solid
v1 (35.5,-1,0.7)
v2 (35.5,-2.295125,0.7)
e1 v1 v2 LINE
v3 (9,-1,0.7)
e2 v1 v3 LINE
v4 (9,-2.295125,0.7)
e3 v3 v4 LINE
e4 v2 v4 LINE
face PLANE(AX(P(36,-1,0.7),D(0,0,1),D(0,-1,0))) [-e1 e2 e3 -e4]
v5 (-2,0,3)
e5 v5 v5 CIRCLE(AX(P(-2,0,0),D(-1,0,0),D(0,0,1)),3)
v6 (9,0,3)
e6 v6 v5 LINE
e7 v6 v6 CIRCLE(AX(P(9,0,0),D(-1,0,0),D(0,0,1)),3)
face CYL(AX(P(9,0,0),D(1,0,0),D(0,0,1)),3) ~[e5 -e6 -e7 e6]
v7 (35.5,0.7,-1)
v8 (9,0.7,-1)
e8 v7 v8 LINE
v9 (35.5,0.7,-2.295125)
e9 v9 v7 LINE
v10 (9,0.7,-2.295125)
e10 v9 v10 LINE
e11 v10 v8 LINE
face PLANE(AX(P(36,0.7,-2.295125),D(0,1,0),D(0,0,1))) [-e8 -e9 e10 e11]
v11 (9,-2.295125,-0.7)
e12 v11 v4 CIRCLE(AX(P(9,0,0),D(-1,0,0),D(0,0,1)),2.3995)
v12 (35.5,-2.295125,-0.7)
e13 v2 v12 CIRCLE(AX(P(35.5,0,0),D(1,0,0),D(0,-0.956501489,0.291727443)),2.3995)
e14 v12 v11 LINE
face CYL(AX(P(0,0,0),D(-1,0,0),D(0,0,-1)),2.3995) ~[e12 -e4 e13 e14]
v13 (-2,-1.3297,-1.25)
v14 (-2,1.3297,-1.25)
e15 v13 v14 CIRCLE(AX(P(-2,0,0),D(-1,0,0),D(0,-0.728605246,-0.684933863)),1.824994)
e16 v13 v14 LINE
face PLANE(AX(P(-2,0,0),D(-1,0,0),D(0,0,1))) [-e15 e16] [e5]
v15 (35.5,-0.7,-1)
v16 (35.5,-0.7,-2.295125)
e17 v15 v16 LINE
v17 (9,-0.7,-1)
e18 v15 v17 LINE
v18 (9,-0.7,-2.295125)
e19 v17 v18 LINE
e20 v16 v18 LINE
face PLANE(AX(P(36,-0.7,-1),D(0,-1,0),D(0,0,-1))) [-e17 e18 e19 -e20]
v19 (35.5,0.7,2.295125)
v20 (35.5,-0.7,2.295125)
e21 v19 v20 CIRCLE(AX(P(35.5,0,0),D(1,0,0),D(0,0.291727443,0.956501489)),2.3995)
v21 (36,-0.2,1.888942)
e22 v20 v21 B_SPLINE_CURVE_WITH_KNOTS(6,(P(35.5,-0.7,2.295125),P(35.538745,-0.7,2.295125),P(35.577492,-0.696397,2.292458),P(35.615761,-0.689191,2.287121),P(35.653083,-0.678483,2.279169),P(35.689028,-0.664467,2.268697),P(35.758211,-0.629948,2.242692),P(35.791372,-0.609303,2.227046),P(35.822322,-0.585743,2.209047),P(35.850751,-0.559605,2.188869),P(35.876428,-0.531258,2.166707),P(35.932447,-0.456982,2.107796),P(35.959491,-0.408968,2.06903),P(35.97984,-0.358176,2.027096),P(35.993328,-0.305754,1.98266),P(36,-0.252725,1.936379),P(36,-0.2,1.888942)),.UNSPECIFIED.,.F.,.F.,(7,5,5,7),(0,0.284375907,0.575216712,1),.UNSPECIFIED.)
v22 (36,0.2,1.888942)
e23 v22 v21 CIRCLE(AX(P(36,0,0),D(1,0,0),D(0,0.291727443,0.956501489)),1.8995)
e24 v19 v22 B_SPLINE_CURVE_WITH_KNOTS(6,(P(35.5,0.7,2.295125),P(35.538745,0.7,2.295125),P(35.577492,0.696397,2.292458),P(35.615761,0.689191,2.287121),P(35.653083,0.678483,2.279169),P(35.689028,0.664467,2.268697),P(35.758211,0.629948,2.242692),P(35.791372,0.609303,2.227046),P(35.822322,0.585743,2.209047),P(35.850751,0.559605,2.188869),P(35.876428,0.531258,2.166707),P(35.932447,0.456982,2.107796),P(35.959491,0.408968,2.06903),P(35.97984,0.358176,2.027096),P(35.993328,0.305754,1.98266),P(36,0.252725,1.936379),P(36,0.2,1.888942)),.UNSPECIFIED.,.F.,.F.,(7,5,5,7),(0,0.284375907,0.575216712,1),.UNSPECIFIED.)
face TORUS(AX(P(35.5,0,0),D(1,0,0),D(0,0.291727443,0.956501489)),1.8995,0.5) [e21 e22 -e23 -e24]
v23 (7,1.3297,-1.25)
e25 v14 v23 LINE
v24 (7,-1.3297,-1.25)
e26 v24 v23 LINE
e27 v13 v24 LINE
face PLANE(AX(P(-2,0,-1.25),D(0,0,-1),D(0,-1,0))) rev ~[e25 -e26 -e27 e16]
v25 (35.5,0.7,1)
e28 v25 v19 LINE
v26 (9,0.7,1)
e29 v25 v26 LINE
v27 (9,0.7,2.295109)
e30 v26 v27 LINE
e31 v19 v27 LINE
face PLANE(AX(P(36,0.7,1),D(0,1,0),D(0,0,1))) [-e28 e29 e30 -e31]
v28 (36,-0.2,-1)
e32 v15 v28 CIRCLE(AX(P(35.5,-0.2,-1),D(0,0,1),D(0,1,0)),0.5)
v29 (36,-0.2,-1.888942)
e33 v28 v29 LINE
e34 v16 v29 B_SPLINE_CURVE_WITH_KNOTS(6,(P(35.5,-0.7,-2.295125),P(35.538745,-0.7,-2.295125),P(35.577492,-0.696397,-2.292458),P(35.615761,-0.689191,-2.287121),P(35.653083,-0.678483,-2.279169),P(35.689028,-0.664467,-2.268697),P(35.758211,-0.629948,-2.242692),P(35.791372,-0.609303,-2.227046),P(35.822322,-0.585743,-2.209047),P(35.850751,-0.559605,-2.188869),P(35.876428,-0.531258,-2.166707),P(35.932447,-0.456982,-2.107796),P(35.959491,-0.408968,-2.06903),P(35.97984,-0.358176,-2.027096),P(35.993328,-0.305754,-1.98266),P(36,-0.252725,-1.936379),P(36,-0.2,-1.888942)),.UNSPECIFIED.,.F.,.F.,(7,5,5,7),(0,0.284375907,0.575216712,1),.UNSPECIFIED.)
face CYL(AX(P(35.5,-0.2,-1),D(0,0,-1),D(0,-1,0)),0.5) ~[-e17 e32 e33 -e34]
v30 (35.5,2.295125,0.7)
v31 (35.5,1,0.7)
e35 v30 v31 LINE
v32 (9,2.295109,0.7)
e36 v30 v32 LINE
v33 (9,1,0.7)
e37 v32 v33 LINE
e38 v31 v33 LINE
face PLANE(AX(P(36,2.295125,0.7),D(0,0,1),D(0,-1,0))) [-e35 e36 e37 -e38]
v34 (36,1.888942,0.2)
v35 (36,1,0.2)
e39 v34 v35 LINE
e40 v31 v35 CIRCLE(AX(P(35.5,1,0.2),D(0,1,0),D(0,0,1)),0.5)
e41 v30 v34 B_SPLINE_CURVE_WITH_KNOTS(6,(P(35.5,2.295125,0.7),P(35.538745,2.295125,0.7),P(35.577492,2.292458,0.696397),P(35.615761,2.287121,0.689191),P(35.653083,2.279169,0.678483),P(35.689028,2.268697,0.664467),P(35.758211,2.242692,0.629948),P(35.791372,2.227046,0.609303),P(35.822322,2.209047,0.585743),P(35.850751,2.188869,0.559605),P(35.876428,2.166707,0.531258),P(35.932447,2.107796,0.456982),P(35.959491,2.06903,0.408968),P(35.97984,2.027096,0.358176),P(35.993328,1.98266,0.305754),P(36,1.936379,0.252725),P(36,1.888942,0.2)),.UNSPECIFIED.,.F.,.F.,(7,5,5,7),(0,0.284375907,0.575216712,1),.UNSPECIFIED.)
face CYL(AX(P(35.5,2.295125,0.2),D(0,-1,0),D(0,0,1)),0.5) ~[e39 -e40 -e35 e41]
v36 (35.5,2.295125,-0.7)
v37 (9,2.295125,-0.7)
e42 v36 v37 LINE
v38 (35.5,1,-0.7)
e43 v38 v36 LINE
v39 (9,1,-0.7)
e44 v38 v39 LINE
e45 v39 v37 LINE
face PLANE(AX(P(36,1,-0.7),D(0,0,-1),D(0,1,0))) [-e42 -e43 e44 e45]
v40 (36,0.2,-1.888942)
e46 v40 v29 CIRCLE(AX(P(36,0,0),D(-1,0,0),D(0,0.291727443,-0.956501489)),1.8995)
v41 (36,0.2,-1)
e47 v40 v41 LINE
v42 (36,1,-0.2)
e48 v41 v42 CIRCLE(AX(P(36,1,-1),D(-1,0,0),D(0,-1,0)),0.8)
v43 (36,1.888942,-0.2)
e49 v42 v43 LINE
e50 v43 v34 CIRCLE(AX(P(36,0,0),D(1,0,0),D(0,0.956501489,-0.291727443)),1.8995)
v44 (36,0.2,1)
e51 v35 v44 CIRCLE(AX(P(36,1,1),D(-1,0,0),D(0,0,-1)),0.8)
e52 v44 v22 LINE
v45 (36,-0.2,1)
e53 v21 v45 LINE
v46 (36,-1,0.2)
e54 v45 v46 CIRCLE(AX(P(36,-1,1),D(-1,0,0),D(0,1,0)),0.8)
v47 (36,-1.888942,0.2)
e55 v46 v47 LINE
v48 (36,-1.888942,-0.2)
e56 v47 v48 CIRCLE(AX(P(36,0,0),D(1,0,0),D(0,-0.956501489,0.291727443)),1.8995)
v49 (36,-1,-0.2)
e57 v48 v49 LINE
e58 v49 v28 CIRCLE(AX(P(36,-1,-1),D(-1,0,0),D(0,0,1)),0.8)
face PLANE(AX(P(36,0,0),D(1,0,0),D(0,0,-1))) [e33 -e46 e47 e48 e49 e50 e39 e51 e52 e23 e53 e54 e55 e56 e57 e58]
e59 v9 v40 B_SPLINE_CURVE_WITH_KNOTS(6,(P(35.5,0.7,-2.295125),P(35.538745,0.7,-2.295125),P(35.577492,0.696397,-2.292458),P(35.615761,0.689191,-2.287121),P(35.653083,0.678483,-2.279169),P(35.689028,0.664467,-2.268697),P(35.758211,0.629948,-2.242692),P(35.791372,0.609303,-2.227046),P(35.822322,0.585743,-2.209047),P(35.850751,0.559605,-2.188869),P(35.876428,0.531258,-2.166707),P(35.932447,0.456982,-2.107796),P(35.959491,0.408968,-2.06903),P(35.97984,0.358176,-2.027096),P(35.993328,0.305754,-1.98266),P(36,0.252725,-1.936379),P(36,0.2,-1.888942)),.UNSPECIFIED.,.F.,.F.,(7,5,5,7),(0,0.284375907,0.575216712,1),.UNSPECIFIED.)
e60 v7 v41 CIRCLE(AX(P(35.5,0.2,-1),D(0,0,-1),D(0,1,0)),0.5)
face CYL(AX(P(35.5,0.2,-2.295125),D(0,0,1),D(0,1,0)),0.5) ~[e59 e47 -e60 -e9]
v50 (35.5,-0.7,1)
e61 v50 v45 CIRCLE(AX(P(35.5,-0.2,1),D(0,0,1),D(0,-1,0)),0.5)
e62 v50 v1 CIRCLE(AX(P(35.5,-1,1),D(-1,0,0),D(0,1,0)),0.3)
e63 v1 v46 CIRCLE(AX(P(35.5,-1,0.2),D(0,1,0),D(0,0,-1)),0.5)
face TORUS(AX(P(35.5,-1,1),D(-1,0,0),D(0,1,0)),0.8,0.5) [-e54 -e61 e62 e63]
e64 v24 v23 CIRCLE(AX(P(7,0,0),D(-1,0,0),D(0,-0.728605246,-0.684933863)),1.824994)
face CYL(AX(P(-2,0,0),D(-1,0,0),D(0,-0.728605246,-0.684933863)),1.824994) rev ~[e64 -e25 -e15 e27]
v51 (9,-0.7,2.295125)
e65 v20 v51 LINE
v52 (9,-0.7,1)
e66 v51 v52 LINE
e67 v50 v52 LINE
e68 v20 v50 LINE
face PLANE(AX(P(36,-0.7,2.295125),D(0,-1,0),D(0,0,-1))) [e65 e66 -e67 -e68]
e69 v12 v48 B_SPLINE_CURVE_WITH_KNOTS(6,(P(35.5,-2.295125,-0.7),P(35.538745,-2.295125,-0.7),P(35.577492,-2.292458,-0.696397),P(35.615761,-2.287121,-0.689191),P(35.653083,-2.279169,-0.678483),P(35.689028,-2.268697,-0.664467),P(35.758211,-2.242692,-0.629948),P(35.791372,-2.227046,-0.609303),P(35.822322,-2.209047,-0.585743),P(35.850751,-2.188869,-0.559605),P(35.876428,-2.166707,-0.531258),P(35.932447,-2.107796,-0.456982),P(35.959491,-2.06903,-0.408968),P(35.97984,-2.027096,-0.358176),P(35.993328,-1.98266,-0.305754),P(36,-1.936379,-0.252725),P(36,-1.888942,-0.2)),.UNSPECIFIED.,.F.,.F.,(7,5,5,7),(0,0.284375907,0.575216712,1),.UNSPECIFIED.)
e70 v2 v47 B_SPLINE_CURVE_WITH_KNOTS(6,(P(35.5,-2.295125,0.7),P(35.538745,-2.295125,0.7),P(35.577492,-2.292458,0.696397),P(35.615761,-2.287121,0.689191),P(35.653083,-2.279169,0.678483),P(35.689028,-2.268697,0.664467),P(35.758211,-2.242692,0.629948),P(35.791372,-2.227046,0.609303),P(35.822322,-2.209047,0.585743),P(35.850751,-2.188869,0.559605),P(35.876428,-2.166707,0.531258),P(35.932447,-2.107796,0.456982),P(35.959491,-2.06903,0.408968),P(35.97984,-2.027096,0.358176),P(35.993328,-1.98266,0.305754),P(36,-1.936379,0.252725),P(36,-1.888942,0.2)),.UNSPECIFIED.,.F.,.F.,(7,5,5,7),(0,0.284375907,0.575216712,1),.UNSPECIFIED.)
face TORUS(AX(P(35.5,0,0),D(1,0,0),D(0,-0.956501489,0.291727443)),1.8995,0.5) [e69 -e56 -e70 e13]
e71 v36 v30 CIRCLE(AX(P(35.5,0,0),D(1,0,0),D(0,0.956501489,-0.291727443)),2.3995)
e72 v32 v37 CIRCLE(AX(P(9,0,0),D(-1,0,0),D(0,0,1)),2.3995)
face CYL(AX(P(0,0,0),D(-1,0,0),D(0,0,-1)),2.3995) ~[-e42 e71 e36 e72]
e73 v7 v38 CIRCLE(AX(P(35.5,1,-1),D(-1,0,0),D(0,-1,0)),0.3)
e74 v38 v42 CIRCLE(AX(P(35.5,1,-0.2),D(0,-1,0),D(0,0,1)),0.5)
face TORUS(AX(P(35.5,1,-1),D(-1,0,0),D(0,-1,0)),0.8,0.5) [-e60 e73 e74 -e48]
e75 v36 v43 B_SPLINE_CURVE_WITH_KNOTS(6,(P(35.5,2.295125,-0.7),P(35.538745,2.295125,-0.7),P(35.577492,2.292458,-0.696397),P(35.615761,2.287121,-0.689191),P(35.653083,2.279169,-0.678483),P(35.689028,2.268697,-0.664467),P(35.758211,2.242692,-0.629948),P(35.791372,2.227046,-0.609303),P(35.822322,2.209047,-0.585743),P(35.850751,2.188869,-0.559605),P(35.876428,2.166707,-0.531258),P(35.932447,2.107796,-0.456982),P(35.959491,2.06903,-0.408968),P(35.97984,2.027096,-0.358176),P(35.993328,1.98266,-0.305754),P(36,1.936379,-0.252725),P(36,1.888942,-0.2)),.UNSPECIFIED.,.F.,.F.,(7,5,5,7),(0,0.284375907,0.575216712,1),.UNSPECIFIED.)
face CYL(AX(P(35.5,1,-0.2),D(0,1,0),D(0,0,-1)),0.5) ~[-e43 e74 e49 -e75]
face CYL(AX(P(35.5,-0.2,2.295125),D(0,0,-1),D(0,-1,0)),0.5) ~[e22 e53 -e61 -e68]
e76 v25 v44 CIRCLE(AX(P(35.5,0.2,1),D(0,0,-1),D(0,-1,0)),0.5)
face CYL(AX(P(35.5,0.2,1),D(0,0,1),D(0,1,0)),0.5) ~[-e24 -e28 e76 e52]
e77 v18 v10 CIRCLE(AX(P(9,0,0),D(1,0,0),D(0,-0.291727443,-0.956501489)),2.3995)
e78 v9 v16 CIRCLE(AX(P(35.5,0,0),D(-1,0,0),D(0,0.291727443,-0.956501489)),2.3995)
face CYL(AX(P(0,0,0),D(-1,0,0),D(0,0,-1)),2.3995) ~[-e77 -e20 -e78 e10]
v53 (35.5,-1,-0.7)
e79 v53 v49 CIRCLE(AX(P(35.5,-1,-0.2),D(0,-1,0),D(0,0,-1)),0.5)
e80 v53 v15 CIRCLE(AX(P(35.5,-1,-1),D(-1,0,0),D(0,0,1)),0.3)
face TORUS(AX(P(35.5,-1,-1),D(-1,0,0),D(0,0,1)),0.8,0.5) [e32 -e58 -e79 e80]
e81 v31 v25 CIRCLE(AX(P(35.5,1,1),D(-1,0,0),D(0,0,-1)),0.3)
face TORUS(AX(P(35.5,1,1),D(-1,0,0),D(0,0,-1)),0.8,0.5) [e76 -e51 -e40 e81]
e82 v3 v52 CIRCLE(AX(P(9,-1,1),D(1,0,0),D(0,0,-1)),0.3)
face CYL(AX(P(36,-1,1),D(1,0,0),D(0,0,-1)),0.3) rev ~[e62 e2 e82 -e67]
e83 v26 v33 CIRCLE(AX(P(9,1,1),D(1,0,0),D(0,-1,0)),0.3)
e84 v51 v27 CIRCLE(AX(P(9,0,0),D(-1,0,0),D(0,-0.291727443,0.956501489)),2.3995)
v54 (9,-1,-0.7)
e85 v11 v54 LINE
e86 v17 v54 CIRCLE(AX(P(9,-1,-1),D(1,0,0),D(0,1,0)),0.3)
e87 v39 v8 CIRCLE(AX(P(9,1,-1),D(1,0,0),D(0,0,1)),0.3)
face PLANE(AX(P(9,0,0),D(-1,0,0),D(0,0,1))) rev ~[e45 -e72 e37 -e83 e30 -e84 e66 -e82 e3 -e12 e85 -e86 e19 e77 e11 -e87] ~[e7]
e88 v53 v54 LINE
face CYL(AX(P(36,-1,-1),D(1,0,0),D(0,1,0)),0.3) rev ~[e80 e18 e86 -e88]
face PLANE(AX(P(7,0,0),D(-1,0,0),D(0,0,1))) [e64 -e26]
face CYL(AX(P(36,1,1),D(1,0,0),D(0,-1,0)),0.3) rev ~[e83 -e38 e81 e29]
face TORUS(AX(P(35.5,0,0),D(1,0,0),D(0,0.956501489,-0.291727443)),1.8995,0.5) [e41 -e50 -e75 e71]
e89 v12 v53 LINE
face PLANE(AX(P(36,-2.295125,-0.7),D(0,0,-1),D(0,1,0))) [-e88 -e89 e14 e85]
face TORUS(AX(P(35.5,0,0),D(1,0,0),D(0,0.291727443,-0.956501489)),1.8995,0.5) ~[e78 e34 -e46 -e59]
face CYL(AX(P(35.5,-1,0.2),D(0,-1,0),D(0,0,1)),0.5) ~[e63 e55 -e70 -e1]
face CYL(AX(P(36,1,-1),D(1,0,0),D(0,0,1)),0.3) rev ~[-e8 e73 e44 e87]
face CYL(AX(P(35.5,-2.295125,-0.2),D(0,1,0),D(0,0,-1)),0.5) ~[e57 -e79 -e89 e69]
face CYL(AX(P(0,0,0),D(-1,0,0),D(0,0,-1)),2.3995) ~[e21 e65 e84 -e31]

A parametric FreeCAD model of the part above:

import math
import FreeCAD as App
import Part
import Sketcher

V = App.Vector


def edges_at(feature, points):
    """Names of the edges that pass closest to the given points."""
    edges = feature.Shape.Edges
    near = lambda p: min(range(len(edges)), key=lambda i: edges[i].distToShape(Part.Vertex(*p))[0])
    return sorted({f"Edge{near(p) + 1}" for p in points})

doc = App.newDocument("Part")
body = doc.addObject("PartDesign::Body", "Body")

sketch1 = body.newObject("Sketcher::SketchObject", "Sketch")
sketch1.AttachmentSupport = (doc.getObject("YZ_Plane"), [""])
sketch1.MapMode = "FlatFace"
sketch1.addGeometry(Part.Circle(V(0, 0, 0), V(0, 0, 1), 2.4), False)
sketch1.addConstraint(Sketcher.Constraint("Coincident", 0, 3, -1, 1))
sketch1.addConstraint(Sketcher.Constraint("Diameter", 0, 4.799))
pad1 = body.newObject("PartDesign::Pad", "Pad")
pad1.Profile = sketch1
pad1.Length = 36

sketch2 = body.newObject("Sketcher::SketchObject", "Sketch001")
sketch2.AttachmentSupport = (doc.getObject("YZ_Plane"), [""])
sketch2.MapMode = "FlatFace"
sketch2.AttachmentOffset = App.Placement(V(0, 0, 36), App.Rotation())
sketch2.addGeometry(Part.LineSegment(V(0.7, -1, 0), V(0.7, -2.3, 0)), False)
sketch2.addGeometry(Part.ArcOfCircle(Part.Circle(V(0, 0, 0), V(0, 0, 1), 2.4), math.radians(-73), math.radians(-17)), False)
sketch2.addGeometry(Part.LineSegment(V(2.3, -0.7, 0), V(1, -0.7, 0)), False)
sketch2.addGeometry(Part.ArcOfCircle(Part.Circle(V(1, -1, 0), V(0, 0, 1), 0.3), math.radians(90), math.radians(180)), False)
sketch2.addGeometry(Part.ArcOfCircle(Part.Circle(V(0, 0, 0), V(0, 0, 1), 2.4), math.radians(-163), math.radians(-107)), False)
sketch2.addGeometry(Part.LineSegment(V(-0.7, -2.3, 0), V(-0.7, -1, 0)), False)
sketch2.addGeometry(Part.ArcOfCircle(Part.Circle(V(-1, -1, 0), V(0, 0, 1), 0.3), math.radians(0), math.radians(90)), False)
sketch2.addGeometry(Part.LineSegment(V(-1, -0.7, 0), V(-2.3, -0.7, 0)), False)
sketch2.addGeometry(Part.LineSegment(V(1, 0.7, 0), V(2.3, 0.7, 0)), False)
sketch2.addGeometry(Part.ArcOfCircle(Part.Circle(V(0, 0, 0), V(0, 0, 1), 2.4), math.radians(17), math.radians(73)), False)
sketch2.addGeometry(Part.LineSegment(V(0.7, 2.3, 0), V(0.7, 1, 0)), False)
sketch2.addGeometry(Part.ArcOfCircle(Part.Circle(V(1, 1, 0), V(0, 0, 1), 0.3), math.radians(180), math.radians(270)), False)
sketch2.addGeometry(Part.ArcOfCircle(Part.Circle(V(0, 0, 0), V(0, 0, 1), 2.4), math.radians(107), math.radians(163)), False)
sketch2.addGeometry(Part.LineSegment(V(-2.3, 0.7, 0), V(-1, 0.7, 0)), False)
sketch2.addGeometry(Part.ArcOfCircle(Part.Circle(V(-1, 1, 0), V(0, 0, 1), 0.3), math.radians(-90), math.radians(0)), False)
sketch2.addGeometry(Part.LineSegment(V(-0.7, 1, 0), V(-0.7, 2.3, 0)), False)
sketch2.addConstraint(Sketcher.Constraint("Coincident", 0, 2, 1, 1))
sketch2.addConstraint(Sketcher.Constraint("Coincident", 1, 2, 2, 1))
sketch2.addConstraint(Sketcher.Constraint("Tangent", 2, 2, 3, 1))
sketch2.addConstraint(Sketcher.Constraint("Tangent", 3, 2, 0, 1))
sketch2.addConstraint(Sketcher.Constraint("Coincident", 4, 2, 5, 1))
sketch2.addConstraint(Sketcher.Constraint("Tangent", 5, 2, 6, 1))
sketch2.addConstraint(Sketcher.Constraint("Tangent", 6, 2, 7, 1))
sketch2.addConstraint(Sketcher.Constraint("Coincident", 7, 2, 4, 1))
sketch2.addConstraint(Sketcher.Constraint("Coincident", 8, 2, 9, 1))
sketch2.addConstraint(Sketcher.Constraint("Coincident", 9, 2, 10, 1))
sketch2.addConstraint(Sketcher.Constraint("Tangent", 10, 2, 11, 1))
sketch2.addConstraint(Sketcher.Constraint("Tangent", 11, 2, 8, 1))
sketch2.addConstraint(Sketcher.Constraint("Coincident", 12, 2, 13, 1))
sketch2.addConstraint(Sketcher.Constraint("Tangent", 13, 2, 14, 1))
sketch2.addConstraint(Sketcher.Constraint("Tangent", 14, 2, 15, 1))
sketch2.addConstraint(Sketcher.Constraint("Coincident", 15, 2, 12, 1))
sketch2.addConstraint(Sketcher.Constraint("Vertical", 0))
sketch2.addConstraint(Sketcher.Constraint("Horizontal", 2))
sketch2.addConstraint(Sketcher.Constraint("Vertical", 5))
sketch2.addConstraint(Sketcher.Constraint("Horizontal", 7))
sketch2.addConstraint(Sketcher.Constraint("Horizontal", 8))
sketch2.addConstraint(Sketcher.Constraint("Vertical", 10))
sketch2.addConstraint(Sketcher.Constraint("Horizontal", 13))
sketch2.addConstraint(Sketcher.Constraint("Vertical", 15))
sketch2.addConstraint(Sketcher.Constraint("Coincident", 1, 3, -1, 1))
sketch2.addConstraint(Sketcher.Constraint("Coincident", 4, 3, -1, 1))
sketch2.addConstraint(Sketcher.Constraint("Coincident", 9, 3, -1, 1))
sketch2.addConstraint(Sketcher.Constraint("Coincident", 12, 3, -1, 1))
sketch2.addConstraint(Sketcher.Constraint("Equal", 1, 4))
sketch2.addConstraint(Sketcher.Constraint("Equal", 3, 6))
sketch2.addConstraint(Sketcher.Constraint("Equal", 4, 9))
sketch2.addConstraint(Sketcher.Constraint("Equal", 6, 11))
sketch2.addConstraint(Sketcher.Constraint("Equal", 9, 12))
sketch2.addConstraint(Sketcher.Constraint("Equal", 11, 14))
sketch2.addConstraint(Sketcher.Constraint("Symmetric", 6, 3, 11, 3, -1, 1))
sketch2.addConstraint(Sketcher.Constraint("Symmetric", 3, 3, 14, 3, -1, 1))
sketch2.addConstraint(Sketcher.Constraint("Symmetric", 3, 3, 6, 3, -2))
sketch2.addConstraint(Sketcher.Constraint("Equal", 13, 0))
sketch2.addConstraint(Sketcher.Constraint("Radius", 3, 0.3))
sketch2.addConstraint(Sketcher.Constraint("Radius", 1, 2.3995))
sketch2.addConstraint(Sketcher.Constraint("DistanceX", 4, 2, 0, 2, 1.4))
pocket1 = body.newObject("PartDesign::Pocket", "Pocket")
pocket1.Profile = sketch2
pocket1.Length = 27

sketch3 = body.newObject("Sketcher::SketchObject", "Sketch002")
sketch3.AttachmentSupport = (doc.getObject("YZ_Plane"), [""])
sketch3.MapMode = "FlatFace"
sketch3.addGeometry(Part.Circle(V(0, 0, 0), V(0, 0, 1), 2.4), False)
sketch3.addConstraint(Sketcher.Constraint("Coincident", 0, 3, -1, 1))
sketch3.addConstraint(Sketcher.Constraint("Diameter", 0, 4.799))
pocket2 = body.newObject("PartDesign::Pocket", "Pocket001")
pocket2.Profile = sketch3
pocket2.Length = 9
pocket2.Reversed = True

sketch4 = body.newObject("Sketcher::SketchObject", "Sketch003")
sketch4.AttachmentSupport = (doc.getObject("YZ_Plane"), [""])
sketch4.MapMode = "FlatFace"
sketch4.AttachmentOffset = App.Placement(V(0, 0, 9), App.Rotation())
sketch4.addGeometry(Part.Circle(V(0, 0, 0), V(0, 0, 1), 3), False)
sketch4.addConstraint(Sketcher.Constraint("Coincident", 0, 3, -1, 1))
sketch4.addConstraint(Sketcher.Constraint("Diameter", 0, 6.0))
pad2 = body.newObject("PartDesign::Pad", "Pad001")
pad2.Profile = sketch4
pad2.Length = 11
pad2.Reversed = True

sketch5 = body.newObject("Sketcher::SketchObject", "Sketch004")
sketch5.AttachmentSupport = (doc.getObject("YZ_Plane"), [""])
sketch5.MapMode = "FlatFace"
sketch5.AttachmentOffset = App.Placement(V(0, 0, -2), App.Rotation())
sketch5.addGeometry(Part.LineSegment(V(1.3, -1.2, 0), V(-1.3, -1.2, 0)), False)
sketch5.addGeometry(Part.ArcOfCircle(Part.Circle(V(0, 0, 0), V(0, 0, 1), 1.8), math.radians(-43), math.radians(223)), False)
sketch5.addConstraint(Sketcher.Constraint("Coincident", 0, 1, 1, 1))
sketch5.addConstraint(Sketcher.Constraint("Coincident", 1, 2, 0, 2))
sketch5.addConstraint(Sketcher.Constraint("Horizontal", 0))
sketch5.addConstraint(Sketcher.Constraint("Coincident", 1, 3, -1, 1))
sketch5.addConstraint(Sketcher.Constraint("Radius", 1, 1.825))
sketch5.addConstraint(Sketcher.Constraint("DistanceY", 0, 1, -1, 1, 1.25))
pocket3 = body.newObject("PartDesign::Pocket", "Pocket002")
pocket3.Profile = sketch5
pocket3.Length = 9
pocket3.Reversed = True
doc.recompute()

fillet = body.newObject("PartDesign::Fillet", "Fillet")
fillet.Base = (pocket3, edges_at(pocket3, [
    (36, 2.4, 0),
    (36, 0.7, -1.648),
    (36, 0.788, -0.788),
    (36, 1.648, -0.7),
    (36, 1.648, 0.7),
    (36, 0.788, 0.788),
    (36, 0.7, 1.648),
    (36, 0, 2.4),
    (36, -0.7, 1.648),
    (36, -0.788, 0.788),
    (36, -1.648, 0.7),
    (36, -2.4, 0),
    (36, -1.648, -0.7),
    (36, -0.788, -0.788),
    (36, -0.7, -1.648),
    (36, 0, -2.4),
]))
fillet.Radius = 0.5

doc.recompute()
